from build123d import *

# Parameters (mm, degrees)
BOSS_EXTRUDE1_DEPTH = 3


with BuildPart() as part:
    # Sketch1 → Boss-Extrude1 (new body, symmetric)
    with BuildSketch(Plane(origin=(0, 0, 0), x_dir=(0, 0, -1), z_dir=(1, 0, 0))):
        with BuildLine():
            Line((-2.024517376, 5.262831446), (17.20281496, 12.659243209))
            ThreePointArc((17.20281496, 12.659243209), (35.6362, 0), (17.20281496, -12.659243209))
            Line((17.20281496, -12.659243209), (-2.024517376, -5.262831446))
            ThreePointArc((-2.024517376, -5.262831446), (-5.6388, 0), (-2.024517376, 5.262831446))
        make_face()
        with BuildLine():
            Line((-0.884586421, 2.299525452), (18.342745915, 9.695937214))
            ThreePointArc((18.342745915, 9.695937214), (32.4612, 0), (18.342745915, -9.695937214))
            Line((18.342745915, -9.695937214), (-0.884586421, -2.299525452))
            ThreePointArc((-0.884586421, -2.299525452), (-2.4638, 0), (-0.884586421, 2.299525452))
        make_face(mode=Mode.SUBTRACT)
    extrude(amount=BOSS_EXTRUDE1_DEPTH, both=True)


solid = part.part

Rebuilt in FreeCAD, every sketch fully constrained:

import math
import FreeCAD as App
import Part
import Sketcher

V = App.Vector
Q = App.Units.Quantity

doc = App.newDocument("Part")
body = doc.addObject("PartDesign::Body", "Body")

# Sketch on YZ plane
sketch1 = body.newObject("Sketcher::SketchObject", "Sketch")
sketch1.AttachmentSupport = (doc.getObject("YZ_Plane"), [""])
sketch1.MapMode = "FlatFace"
sketch1.addGeometry(Part.LineSegment(V(12.7, -17.2, 0), V(5.3, 2, 0)), False)
sketch1.addGeometry(Part.ArcOfCircle(Part.Circle(V(0, 0, 0), V(0, 0, 1), 5.6), math.radians(21), math.radians(159)), False)
sketch1.addGeometry(Part.LineSegment(V(-5.3, 2, 0), V(-12.7, -17.2, 0)), False)
sketch1.addGeometry(Part.ArcOfCircle(Part.Circle(V(0, -22.1, 0), V(0, 0, 1), 13.6), math.radians(159), math.radians(381)), False)
sketch1.addGeometry(Part.LineSegment(V(2.3, 0.9, 0), V(9.7, -18.3, 0)), False)
sketch1.addGeometry(Part.ArcOfCircle(Part.Circle(V(0, -22.1, 0), V(0, 0, 1), 10.4), math.radians(159), math.radians(381)), False)
sketch1.addGeometry(Part.LineSegment(V(-9.7, -18.3, 0), V(-2.3, 0.9, 0)), False)
sketch1.addGeometry(Part.ArcOfCircle(Part.Circle(V(0, 0, 0), V(0, 0, 1), 2.5), math.radians(21), math.radians(159)), False)
sketch1.addConstraint(Sketcher.Constraint("Tangent", 0, 2, 1, 1))
sketch1.addConstraint(Sketcher.Constraint("Tangent", 1, 2, 2, 1))
sketch1.addConstraint(Sketcher.Constraint("Tangent", 2, 2, 3, 1))
sketch1.addConstraint(Sketcher.Constraint("Tangent", 3, 2, 0, 1))
sketch1.addConstraint(Sketcher.Constraint("Tangent", 4, 2, 5, 2))
sketch1.addConstraint(Sketcher.Constraint("Tangent", 5, 1, 6, 1))
sketch1.addConstraint(Sketcher.Constraint("Tangent", 6, 2, 7, 2))
sketch1.addConstraint(Sketcher.Constraint("Tangent", 7, 1, 4, 1))
sketch1.addConstraint(Sketcher.Constraint("Coincident", 1, 3, -1, 1))
sketch1.addConstraint(Sketcher.Constraint("Coincident", 7, 3, -1, 1))
sketch1.addConstraint(Sketcher.Constraint("Coincident", 5, 3, 3, 3))
sketch1.addConstraint(Sketcher.Constraint("PointOnObject", 3, 3, -2))
sketch1.addConstraint(Sketcher.Constraint("Parallel", 0, 4))
sketch1.addConstraint(Sketcher.Constraint("Radius", 1, Q("0.222 in")))
sketch1.addConstraint(Sketcher.Constraint("Radius", 3, Q("0.534 in")))
sketch1.addConstraint(Sketcher.Constraint("Radius", 5, Q("0.409 in")))
sketch1.addConstraint(Sketcher.Constraint("DistanceY", 3, 3, -1, 1, Q("0.869 in")))
pad1 = body.newObject("PartDesign::Pad", "Pad")
pad1.Profile = sketch1
pad1.Length = 6
pad1.Midplane = True

doc.recompute()
